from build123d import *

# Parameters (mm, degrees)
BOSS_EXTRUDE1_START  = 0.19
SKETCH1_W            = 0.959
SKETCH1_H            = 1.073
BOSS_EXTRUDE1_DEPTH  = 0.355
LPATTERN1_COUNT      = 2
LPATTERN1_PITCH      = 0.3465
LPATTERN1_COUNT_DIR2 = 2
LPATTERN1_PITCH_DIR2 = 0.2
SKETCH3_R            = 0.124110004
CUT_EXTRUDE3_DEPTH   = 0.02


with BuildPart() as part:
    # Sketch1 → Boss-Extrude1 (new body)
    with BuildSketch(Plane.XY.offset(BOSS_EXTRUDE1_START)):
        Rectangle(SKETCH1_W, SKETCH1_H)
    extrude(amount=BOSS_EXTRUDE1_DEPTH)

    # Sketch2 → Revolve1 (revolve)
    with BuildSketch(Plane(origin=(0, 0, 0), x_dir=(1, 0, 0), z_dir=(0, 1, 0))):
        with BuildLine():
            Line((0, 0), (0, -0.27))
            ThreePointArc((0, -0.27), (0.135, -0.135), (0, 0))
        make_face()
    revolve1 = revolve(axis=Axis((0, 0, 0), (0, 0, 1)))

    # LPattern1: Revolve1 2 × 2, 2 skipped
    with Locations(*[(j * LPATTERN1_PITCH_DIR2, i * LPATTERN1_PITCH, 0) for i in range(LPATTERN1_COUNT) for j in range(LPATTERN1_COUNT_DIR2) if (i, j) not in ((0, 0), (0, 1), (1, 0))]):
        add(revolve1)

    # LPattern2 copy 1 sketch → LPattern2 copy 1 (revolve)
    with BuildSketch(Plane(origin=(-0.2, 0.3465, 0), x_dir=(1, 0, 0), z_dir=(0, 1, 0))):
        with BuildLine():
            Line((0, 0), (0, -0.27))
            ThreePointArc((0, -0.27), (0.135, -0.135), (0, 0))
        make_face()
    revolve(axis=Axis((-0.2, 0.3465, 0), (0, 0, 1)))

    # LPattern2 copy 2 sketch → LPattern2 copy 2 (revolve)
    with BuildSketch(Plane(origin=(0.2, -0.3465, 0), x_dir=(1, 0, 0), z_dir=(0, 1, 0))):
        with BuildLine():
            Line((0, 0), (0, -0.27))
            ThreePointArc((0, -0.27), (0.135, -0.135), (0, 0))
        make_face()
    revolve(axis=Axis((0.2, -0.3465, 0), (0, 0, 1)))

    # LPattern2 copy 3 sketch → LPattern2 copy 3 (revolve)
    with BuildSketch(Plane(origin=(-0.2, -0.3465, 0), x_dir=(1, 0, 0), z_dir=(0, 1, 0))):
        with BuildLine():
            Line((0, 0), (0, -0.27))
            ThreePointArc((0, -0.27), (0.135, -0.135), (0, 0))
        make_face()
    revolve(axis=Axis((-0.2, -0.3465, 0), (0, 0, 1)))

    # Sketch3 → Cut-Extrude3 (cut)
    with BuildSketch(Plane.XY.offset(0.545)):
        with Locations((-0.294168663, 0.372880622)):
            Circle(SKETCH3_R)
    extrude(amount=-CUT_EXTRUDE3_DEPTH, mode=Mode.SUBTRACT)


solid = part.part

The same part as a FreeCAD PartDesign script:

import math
import FreeCAD as App
import Part
import Sketcher
Q = App.Units.Quantity


def add_polygon(sketch, points):
    """Adds a closed chain of lines whose ends are joined by coincident constraints."""
    first, n = sketch.GeometryCount, len(points)
    for a, b in zip(points, points[1:] + points[:1]):
        sketch.addGeometry(Part.LineSegment(App.Vector(*a, 0), App.Vector(*b, 0)), False)
    for i in range(n):
        sketch.addConstraint(Sketcher.Constraint("Coincident", first + i, 2, first + (i + 1) % n, 1))

doc = App.newDocument("Part")
body = doc.addObject("PartDesign::Body", "Body")

# Sketch on XY plane
sketch1 = body.newObject("Sketcher::SketchObject", "Sketch")
sketch1.AttachmentSupport = (doc.getObject("XY_Plane"), [""])
sketch1.MapMode = "FlatFace"
sketch1.AttachmentOffset = App.Placement(App.Vector(0, 0, 0.19), App.Rotation())
add_polygon(sketch1, [(-0.5, 0.5), (-0.5, -0.5), (0.5, -0.5), (0.5, 0.5)])  # lines 0-3
sketch1.addConstraint(Sketcher.Constraint("Vertical", 0))
sketch1.addConstraint(Sketcher.Constraint("Horizontal", 1))
sketch1.addConstraint(Sketcher.Constraint("Vertical", 2))
sketch1.addConstraint(Sketcher.Constraint("Horizontal", 3))
sketch1.addConstraint(Sketcher.Constraint("Symmetric", 0, 2, 2, 2, -1, 1))
sketch1.addConstraint(Sketcher.Constraint("DistanceX", 1, 1, 1, 2, Q("0.959 mm")))
sketch1.addConstraint(Sketcher.Constraint("DistanceY", 0, 2, 0, 1, Q("1.073 mm")))
pad1 = body.newObject("PartDesign::Pad", "Pad")
pad1.Profile = sketch1
pad1.Length = 0.355

# Sketch on XZ plane
sketch2 = body.newObject("Sketcher::SketchObject", "Sketch001")
sketch2.AttachmentSupport = (doc.getObject("XZ_Plane"), [""])
sketch2.MapMode = "FlatFace"
sketch2.addGeometry(Part.LineSegment(App.Vector(0, 0, 0), App.Vector(0, 0.27, 0)), False)
sketch2.addGeometry(Part.ArcOfCircle(Part.Circle(App.Vector(0, 0.14, 0), App.Vector(0, 0, 1), 0.14), math.radians(-90), math.radians(90)), False)
sketch2.addConstraint(Sketcher.Constraint("Coincident", 0, 1, 1, 1))
sketch2.addConstraint(Sketcher.Constraint("Coincident", 1, 2, 0, 2))
sketch2.addConstraint(Sketcher.Constraint("Vertical", 0))
sketch2.addConstraint(Sketcher.Constraint("Coincident", 0, 1, -1, 1))
sketch2.addConstraint(Sketcher.Constraint("PointOnObject", 1, 3, -2))
sketch2.addConstraint(Sketcher.Constraint("Radius", 1, Q("0.135 mm")))
revolution = body.newObject("PartDesign::Revolution", "Revolution")
revolution.Profile = sketch2
revolution.ReferenceAxis = (sketch2, ["V_Axis"])
revolution.Angle = 360
doc.recompute()

datumline = body.newObject("PartDesign::Line", "DatumLine")
datumline.Placement = App.Placement(App.Vector(0, 0, 0), App.Rotation(App.Vector(0, 0, 1), App.Vector(0.499902763, 0.866081536, 0)))
linearpattern = body.newObject("PartDesign::LinearPattern", "LinearPattern")
linearpattern.Originals = [revolution]
linearpattern.Direction = (datumline, [""])
linearpattern.Mode = "offset"
linearpattern.Offset = 0.400078
linearpattern.Occurrences = 2
body.Tip = linearpattern

# Sketch on XZ plane
sketch3 = body.newObject("Sketcher::SketchObject", "Sketch002")
sketch3.AttachmentSupport = (doc.getObject("XZ_Plane"), [""])
sketch3.MapMode = "FlatFace"
sketch3.AttachmentOffset = App.Placement(App.Vector(0, 0, -0.3465), App.Rotation())
sketch3.addGeometry(Part.LineSegment(App.Vector(-0.2, 0, 0), App.Vector(-0.2, 0.27, 0)), False)
sketch3.addGeometry(Part.ArcOfCircle(Part.Circle(App.Vector(-0.2, 0.14, 0), App.Vector(0, 0, 1), 0.14), math.radians(-90), math.radians(90)), False)
sketch3.addGeometry(Part.LineSegment(App.Vector(-0.2, 0, 0), App.Vector(-0.2, 0.27, 0)), True)  # axis
sketch3.addConstraint(Sketcher.Constraint("Coincident", 0, 1, 1, 1))
sketch3.addConstraint(Sketcher.Constraint("Coincident", 1, 2, 0, 2))
sketch3.addConstraint(Sketcher.Constraint("Vertical", 0))
sketch3.addConstraint(Sketcher.Constraint("Vertical", 2))
sketch3.addConstraint(Sketcher.Constraint("Coincident", 2, 1, 0, 1))
sketch3.addConstraint(Sketcher.Constraint("PointOnObject", 0, 1, -1))
sketch3.addConstraint(Sketcher.Constraint("Vertical", 1, 3, 0, 1))
sketch3.addConstraint(Sketcher.Constraint("Equal", 0, 2))
sketch3.addConstraint(Sketcher.Constraint("Radius", 1, Q("0.135 mm")))
sketch3.addConstraint(Sketcher.Constraint("DistanceX", 1, 3, -1, 1, Q("0.2 mm")))
revolution2 = body.newObject("PartDesign::Revolution", "Revolution001")
revolution2.Profile = sketch3
revolution2.ReferenceAxis = (sketch3, ["Axis0"])
revolution2.Angle = 360

# Sketch on XZ plane
sketch4 = body.newObject("Sketcher::SketchObject", "Sketch003")
sketch4.AttachmentSupport = (doc.getObject("XZ_Plane"), [""])
sketch4.MapMode = "FlatFace"
sketch4.AttachmentOffset = App.Placement(App.Vector(0, 0, 0.3465), App.Rotation())
sketch4.addGeometry(Part.LineSegment(App.Vector(0.2, 0, 0), App.Vector(0.2, 0.27, 0)), False)
sketch4.addGeometry(Part.ArcOfCircle(Part.Circle(App.Vector(0.2, 0.14, 0), App.Vector(0, 0, 1), 0.14), math.radians(-90), math.radians(90)), False)
sketch4.addGeometry(Part.LineSegment(App.Vector(0.2, 0, 0), App.Vector(0.2, 0.27, 0)), True)  # axis
sketch4.addConstraint(Sketcher.Constraint("Coincident", 0, 1, 1, 1))
sketch4.addConstraint(Sketcher.Constraint("Coincident", 1, 2, 0, 2))
sketch4.addConstraint(Sketcher.Constraint("Vertical", 0))
sketch4.addConstraint(Sketcher.Constraint("Vertical", 2))
sketch4.addConstraint(Sketcher.Constraint("Coincident", 2, 1, 0, 1))
sketch4.addConstraint(Sketcher.Constraint("PointOnObject", 0, 1, -1))
sketch4.addConstraint(Sketcher.Constraint("Vertical", 1, 3, 0, 1))
sketch4.addConstraint(Sketcher.Constraint("Equal", 0, 2))
sketch4.addConstraint(Sketcher.Constraint("Radius", 1, Q("0.135 mm")))
sketch4.addConstraint(Sketcher.Constraint("DistanceX", -1, 1, 1, 3, Q("0.2 mm")))
revolution3 = body.newObject("PartDesign::Revolution", "Revolution002")
revolution3.Profile = sketch4
revolution3.ReferenceAxis = (sketch4, ["Axis0"])
revolution3.Angle = 360

# Sketch on XZ plane
sketch5 = body.newObject("Sketcher::SketchObject", "Sketch004")
sketch5.AttachmentSupport = (doc.getObject("XZ_Plane"), [""])
sketch5.MapMode = "FlatFace"
sketch5.AttachmentOffset = App.Placement(App.Vector(0, 0, 0.3465), App.Rotation())
sketch5.addGeometry(Part.LineSegment(App.Vector(-0.2, 0, 0), App.Vector(-0.2, 0.27, 0)), False)
sketch5.addGeometry(Part.ArcOfCircle(Part.Circle(App.Vector(-0.2, 0.14, 0), App.Vector(0, 0, 1), 0.14), math.radians(-90), math.radians(90)), False)
sketch5.addGeometry(Part.LineSegment(App.Vector(-0.2, 0, 0), App.Vector(-0.2, 0.27, 0)), True)  # axis
sketch5.addConstraint(Sketcher.Constraint("Coincident", 0, 1, 1, 1))
sketch5.addConstraint(Sketcher.Constraint("Coincident", 1, 2, 0, 2))
sketch5.addConstraint(Sketcher.Constraint("Vertical", 0))
sketch5.addConstraint(Sketcher.Constraint("Vertical", 2))
sketch5.addConstraint(Sketcher.Constraint("Coincident", 2, 1, 0, 1))
sketch5.addConstraint(Sketcher.Constraint("PointOnObject", 0, 1, -1))
sketch5.addConstraint(Sketcher.Constraint("Vertical", 1, 3, 0, 1))
sketch5.addConstraint(Sketcher.Constraint("Equal", 0, 2))
sketch5.addConstraint(Sketcher.Constraint("Radius", 1, Q("0.135 mm")))
sketch5.addConstraint(Sketcher.Constraint("DistanceX", 1, 3, -1, 1, Q("0.2 mm")))
revolution4 = body.newObject("PartDesign::Revolution", "Revolution003")
revolution4.Profile = sketch5
revolution4.ReferenceAxis = (sketch5, ["Axis0"])
revolution4.Angle = 360

# Sketch on XY plane
sketch6 = body.newObject("Sketcher::SketchObject", "Sketch005")
sketch6.AttachmentSupport = (doc.getObject("XY_Plane"), [""])
sketch6.MapMode = "FlatFace"
sketch6.AttachmentOffset = App.Placement(App.Vector(0, 0, 0.545), App.Rotation())
sketch6.addGeometry(Part.Circle(App.Vector(-0.29, 0.37, 0), App.Vector(0, 0, 1), 0.12), False)
sketch6.addConstraint(Sketcher.Constraint("Diameter", 0, Q("0.24822 mm")))
sketch6.addConstraint(Sketcher.Constraint("DistanceX", 0, 3, -1, 1, Q("0.294169 mm")))
sketch6.addConstraint(Sketcher.Constraint("DistanceY", -1, 1, 0, 3, Q("0.372881 mm")))
pocket1 = body.newObject("PartDesign::Pocket", "Pocket")
pocket1.Profile = sketch6
pocket1.Length = 0.02

doc.recompute()
